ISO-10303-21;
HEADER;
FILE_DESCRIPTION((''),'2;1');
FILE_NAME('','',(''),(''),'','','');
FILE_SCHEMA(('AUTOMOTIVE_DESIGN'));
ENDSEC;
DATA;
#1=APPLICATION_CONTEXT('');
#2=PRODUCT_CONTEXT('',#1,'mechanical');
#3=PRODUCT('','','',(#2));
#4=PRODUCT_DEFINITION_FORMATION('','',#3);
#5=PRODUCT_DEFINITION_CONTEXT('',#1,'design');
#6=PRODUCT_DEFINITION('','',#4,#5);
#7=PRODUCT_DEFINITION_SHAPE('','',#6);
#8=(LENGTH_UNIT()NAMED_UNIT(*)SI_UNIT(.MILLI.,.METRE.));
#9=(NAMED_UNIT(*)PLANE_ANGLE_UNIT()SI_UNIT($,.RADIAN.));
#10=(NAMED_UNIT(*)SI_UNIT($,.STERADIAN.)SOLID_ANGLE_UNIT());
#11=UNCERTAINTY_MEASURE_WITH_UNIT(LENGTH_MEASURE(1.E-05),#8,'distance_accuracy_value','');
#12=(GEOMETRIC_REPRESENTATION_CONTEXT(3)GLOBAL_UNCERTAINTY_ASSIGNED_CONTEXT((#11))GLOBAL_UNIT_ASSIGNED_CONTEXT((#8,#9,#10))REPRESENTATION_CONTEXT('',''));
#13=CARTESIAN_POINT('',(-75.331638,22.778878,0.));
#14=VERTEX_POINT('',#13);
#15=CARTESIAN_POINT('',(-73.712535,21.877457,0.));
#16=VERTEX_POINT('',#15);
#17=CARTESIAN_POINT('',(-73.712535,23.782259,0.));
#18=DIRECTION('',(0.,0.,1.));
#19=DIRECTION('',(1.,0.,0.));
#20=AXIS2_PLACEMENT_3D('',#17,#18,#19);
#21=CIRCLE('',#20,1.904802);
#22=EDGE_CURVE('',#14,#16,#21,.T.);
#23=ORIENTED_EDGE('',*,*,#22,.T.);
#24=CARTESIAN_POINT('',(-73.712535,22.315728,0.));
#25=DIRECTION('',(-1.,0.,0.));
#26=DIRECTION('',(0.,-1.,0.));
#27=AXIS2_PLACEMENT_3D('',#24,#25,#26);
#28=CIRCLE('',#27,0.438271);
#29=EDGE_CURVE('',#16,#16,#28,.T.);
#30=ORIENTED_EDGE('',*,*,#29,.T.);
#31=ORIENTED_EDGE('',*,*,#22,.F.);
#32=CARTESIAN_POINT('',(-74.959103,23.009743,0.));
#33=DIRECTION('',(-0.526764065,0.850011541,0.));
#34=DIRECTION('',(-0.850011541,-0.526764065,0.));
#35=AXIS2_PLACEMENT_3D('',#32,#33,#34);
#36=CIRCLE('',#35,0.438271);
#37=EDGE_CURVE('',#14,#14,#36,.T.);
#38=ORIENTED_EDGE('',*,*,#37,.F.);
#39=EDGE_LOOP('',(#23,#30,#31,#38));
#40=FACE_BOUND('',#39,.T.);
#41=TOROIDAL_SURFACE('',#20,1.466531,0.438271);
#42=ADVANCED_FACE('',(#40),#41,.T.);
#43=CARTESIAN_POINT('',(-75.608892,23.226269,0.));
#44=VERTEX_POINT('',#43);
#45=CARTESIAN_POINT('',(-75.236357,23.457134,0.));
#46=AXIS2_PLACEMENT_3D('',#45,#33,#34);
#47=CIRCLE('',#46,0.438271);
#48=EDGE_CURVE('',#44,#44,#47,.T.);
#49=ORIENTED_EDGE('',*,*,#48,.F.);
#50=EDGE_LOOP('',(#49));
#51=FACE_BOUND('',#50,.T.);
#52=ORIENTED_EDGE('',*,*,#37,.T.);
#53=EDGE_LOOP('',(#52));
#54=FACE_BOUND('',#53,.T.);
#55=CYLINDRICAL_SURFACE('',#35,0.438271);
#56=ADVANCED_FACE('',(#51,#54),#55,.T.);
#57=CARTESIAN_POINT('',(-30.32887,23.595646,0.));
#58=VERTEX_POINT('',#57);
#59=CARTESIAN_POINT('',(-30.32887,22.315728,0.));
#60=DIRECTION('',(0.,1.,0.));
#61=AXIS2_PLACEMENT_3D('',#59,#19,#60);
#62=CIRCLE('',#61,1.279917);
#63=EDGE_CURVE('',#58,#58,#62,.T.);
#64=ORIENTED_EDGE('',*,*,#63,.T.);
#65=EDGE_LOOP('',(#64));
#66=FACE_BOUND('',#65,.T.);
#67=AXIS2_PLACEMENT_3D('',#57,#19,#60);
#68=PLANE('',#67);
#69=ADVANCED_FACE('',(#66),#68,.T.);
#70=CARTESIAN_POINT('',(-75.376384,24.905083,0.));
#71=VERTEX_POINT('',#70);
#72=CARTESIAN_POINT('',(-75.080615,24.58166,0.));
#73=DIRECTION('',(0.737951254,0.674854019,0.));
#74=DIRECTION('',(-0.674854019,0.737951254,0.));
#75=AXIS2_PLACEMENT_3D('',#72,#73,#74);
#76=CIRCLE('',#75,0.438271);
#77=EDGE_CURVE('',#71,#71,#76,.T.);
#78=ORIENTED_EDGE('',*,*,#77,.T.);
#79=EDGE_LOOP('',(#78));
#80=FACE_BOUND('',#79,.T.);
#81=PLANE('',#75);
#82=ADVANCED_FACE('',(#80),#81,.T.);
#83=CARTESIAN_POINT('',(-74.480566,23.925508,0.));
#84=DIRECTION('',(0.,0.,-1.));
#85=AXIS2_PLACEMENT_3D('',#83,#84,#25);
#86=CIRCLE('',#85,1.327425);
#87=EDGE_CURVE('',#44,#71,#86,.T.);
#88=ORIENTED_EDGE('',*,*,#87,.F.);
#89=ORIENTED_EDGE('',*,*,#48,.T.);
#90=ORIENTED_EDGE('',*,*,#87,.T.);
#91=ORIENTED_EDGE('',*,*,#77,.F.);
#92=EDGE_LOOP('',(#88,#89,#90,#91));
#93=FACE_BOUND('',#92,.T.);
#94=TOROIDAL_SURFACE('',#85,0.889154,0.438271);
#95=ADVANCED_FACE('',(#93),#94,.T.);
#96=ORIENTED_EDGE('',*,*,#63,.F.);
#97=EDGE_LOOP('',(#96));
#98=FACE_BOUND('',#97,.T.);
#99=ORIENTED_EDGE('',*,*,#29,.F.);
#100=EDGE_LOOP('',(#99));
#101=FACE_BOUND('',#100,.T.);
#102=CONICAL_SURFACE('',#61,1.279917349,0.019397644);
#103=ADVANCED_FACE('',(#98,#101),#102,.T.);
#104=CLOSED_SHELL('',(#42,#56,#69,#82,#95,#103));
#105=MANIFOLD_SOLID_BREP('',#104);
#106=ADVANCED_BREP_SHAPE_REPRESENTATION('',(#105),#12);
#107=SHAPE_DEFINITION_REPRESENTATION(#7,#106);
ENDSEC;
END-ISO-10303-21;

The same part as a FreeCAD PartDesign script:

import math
import FreeCAD as App
import Part
import Sketcher
from FreeCAD import Vector


def add_polygon(sketch, points):
    """Adds a closed chain of lines whose ends are joined by coincident constraints."""
    first, n = sketch.GeometryCount, len(points)
    for a, b in zip(points, points[1:] + points[:1]):
        sketch.addGeometry(Part.LineSegment(App.Vector(*a, 0), App.Vector(*b, 0)), False)
    for i in range(n):
        sketch.addConstraint(Sketcher.Constraint("Coincident", first + i, 2, first + (i + 1) % n, 1))

doc = App.newDocument("Part")
params = doc.addObject("Spreadsheet::Sheet", "Params")
for row, (alias, value) in enumerate([
    ("revolution_angle", "360 deg"),
], start=1):
    params.set(f"A{row}", alias)
    params.set(f"B{row}", "=" + value)
    params.setAlias(f"B{row}", alias)

body = doc.addObject("PartDesign::Body", "Body")

sketch1 = doc.addObject("Sketcher::SketchObject", "Sketch")
body.addObject(sketch1)
sketch1.AttachmentSupport = (doc.XY_Plane, [""])
sketch1.MapMode = "FlatFace"
add_polygon(sketch1, [(-73.71, 22.32), (-30.33, 22.32), (-30.33, 23.6), (-73.71, 22.75)])
sketch1.addGeometry(Part.LineSegment(Vector(-30.33, 22.32, 0), Vector(-73.71, 22.32, 0)), True)
sketch1.addConstraint([
    Sketcher.Constraint("Horizontal", 0),
    Sketcher.Constraint("Vertical", 1),
    Sketcher.Constraint("Vertical", 3),
    Sketcher.Constraint("Horizontal", 4),
    Sketcher.Constraint("Coincident", 4, 1, 0, 2),
    Sketcher.Constraint("Vertical", 2, 2, 4, 2),
    Sketcher.Constraint("DistanceY", -1, 1, 2, 2, 22.753999),
    Sketcher.Constraint("DistanceY", 3, 2, 3, 1, 0.438271),
    Sketcher.Constraint("DistanceX", 0, 1, 0, 2, 43.383665),
    Sketcher.Constraint("DistanceY", 1, 1, 1, 2, 1.279917),
    Sketcher.Constraint("DistanceX", 0, 2, -1, 1, 30.32887),
])
revolution = doc.addObject("PartDesign::Revolution", "Revolution")
body.addObject(revolution)
revolution.Profile = sketch1
revolution.ReferenceAxis = (sketch1, ["Axis0"])
revolution.setExpression("Angle", "Params.revolution_angle")

sketch2 = doc.addObject("Sketcher::SketchObject", "Sketch001")
body.addObject(sketch2)
sketch2.AttachmentSupport = (doc.YZ_Plane, [""])
sketch2.MapMode = "FlatFace"
sketch2.AttachmentOffset = App.Placement(Vector(0, 0, -73.712535), App.Rotation())
sketch2.addGeometry(Part.Circle(Vector(22.32, 0, 0), Vector(0, 0, 1), 0.44), False)
sketch2.addConstraint([
    Sketcher.Constraint("PointOnObject", 0, 3, -1),
    Sketcher.Constraint("Diameter", 0, 0.876542),
    Sketcher.Constraint("DistanceX", -1, 1, 0, 3, 22.315728),
])

sketch3 = doc.addObject("Sketcher::SketchObject", "Sketch002")
body.addObject(sketch3)
sketch3.AttachmentSupport = (doc.XY_Plane, [""])
sketch3.MapMode = "FlatFace"
sketch3.addGeometry([
    Part.ArcOfCircle(Part.Circle(Vector(-73.7, 23.8, 0), Vector(0, 0, 1), 1.5), math.radians(-148), math.radians(-90)),
    Part.LineSegment(Vector(-75, 23, 0), Vector(-75.2, 23.5, 0)),
    Part.ArcOfCircle(Part.Circle(Vector(-74.5, 23.9, 0), Vector(0, 0, 1), 0.9), math.radians(132), math.radians(212)),
], False)
sketch3.addConstraint([
    Sketcher.Constraint("Tangent", 0, 1, 1, 1),
    Sketcher.Constraint("Tangent", 1, 2, 2, 2),
    Sketcher.Constraint("Radius", 0, 1.466531),
    Sketcher.Constraint("Radius", 2, 0.889154),
    Sketcher.Constraint("DistanceY", 0, 3, 2, 1, 0.799401),
    Sketcher.Constraint("DistanceY", -1, 1, 0, 3, 23.782259),
    Sketcher.Constraint("DistanceY", -1, 1, 2, 3, 23.925508),
    Sketcher.Constraint("DistanceX", 2, 3, 0, 3, 0.768031),
    Sketcher.Constraint("DistanceX", 2, 3, 0, 2, 0.768031),
    Sketcher.Constraint("DistanceX", 0, 3, -1, 1, 73.712535),
])
doc.recompute()

additivepipe = doc.addObject("PartDesign::AdditivePipe", "AdditivePipe")
body.addObject(additivepipe)
additivepipe.Profile = sketch2
additivepipe.Spine = (sketch3, ["Edge1", "Edge2", "Edge3"])

doc.recompute()
